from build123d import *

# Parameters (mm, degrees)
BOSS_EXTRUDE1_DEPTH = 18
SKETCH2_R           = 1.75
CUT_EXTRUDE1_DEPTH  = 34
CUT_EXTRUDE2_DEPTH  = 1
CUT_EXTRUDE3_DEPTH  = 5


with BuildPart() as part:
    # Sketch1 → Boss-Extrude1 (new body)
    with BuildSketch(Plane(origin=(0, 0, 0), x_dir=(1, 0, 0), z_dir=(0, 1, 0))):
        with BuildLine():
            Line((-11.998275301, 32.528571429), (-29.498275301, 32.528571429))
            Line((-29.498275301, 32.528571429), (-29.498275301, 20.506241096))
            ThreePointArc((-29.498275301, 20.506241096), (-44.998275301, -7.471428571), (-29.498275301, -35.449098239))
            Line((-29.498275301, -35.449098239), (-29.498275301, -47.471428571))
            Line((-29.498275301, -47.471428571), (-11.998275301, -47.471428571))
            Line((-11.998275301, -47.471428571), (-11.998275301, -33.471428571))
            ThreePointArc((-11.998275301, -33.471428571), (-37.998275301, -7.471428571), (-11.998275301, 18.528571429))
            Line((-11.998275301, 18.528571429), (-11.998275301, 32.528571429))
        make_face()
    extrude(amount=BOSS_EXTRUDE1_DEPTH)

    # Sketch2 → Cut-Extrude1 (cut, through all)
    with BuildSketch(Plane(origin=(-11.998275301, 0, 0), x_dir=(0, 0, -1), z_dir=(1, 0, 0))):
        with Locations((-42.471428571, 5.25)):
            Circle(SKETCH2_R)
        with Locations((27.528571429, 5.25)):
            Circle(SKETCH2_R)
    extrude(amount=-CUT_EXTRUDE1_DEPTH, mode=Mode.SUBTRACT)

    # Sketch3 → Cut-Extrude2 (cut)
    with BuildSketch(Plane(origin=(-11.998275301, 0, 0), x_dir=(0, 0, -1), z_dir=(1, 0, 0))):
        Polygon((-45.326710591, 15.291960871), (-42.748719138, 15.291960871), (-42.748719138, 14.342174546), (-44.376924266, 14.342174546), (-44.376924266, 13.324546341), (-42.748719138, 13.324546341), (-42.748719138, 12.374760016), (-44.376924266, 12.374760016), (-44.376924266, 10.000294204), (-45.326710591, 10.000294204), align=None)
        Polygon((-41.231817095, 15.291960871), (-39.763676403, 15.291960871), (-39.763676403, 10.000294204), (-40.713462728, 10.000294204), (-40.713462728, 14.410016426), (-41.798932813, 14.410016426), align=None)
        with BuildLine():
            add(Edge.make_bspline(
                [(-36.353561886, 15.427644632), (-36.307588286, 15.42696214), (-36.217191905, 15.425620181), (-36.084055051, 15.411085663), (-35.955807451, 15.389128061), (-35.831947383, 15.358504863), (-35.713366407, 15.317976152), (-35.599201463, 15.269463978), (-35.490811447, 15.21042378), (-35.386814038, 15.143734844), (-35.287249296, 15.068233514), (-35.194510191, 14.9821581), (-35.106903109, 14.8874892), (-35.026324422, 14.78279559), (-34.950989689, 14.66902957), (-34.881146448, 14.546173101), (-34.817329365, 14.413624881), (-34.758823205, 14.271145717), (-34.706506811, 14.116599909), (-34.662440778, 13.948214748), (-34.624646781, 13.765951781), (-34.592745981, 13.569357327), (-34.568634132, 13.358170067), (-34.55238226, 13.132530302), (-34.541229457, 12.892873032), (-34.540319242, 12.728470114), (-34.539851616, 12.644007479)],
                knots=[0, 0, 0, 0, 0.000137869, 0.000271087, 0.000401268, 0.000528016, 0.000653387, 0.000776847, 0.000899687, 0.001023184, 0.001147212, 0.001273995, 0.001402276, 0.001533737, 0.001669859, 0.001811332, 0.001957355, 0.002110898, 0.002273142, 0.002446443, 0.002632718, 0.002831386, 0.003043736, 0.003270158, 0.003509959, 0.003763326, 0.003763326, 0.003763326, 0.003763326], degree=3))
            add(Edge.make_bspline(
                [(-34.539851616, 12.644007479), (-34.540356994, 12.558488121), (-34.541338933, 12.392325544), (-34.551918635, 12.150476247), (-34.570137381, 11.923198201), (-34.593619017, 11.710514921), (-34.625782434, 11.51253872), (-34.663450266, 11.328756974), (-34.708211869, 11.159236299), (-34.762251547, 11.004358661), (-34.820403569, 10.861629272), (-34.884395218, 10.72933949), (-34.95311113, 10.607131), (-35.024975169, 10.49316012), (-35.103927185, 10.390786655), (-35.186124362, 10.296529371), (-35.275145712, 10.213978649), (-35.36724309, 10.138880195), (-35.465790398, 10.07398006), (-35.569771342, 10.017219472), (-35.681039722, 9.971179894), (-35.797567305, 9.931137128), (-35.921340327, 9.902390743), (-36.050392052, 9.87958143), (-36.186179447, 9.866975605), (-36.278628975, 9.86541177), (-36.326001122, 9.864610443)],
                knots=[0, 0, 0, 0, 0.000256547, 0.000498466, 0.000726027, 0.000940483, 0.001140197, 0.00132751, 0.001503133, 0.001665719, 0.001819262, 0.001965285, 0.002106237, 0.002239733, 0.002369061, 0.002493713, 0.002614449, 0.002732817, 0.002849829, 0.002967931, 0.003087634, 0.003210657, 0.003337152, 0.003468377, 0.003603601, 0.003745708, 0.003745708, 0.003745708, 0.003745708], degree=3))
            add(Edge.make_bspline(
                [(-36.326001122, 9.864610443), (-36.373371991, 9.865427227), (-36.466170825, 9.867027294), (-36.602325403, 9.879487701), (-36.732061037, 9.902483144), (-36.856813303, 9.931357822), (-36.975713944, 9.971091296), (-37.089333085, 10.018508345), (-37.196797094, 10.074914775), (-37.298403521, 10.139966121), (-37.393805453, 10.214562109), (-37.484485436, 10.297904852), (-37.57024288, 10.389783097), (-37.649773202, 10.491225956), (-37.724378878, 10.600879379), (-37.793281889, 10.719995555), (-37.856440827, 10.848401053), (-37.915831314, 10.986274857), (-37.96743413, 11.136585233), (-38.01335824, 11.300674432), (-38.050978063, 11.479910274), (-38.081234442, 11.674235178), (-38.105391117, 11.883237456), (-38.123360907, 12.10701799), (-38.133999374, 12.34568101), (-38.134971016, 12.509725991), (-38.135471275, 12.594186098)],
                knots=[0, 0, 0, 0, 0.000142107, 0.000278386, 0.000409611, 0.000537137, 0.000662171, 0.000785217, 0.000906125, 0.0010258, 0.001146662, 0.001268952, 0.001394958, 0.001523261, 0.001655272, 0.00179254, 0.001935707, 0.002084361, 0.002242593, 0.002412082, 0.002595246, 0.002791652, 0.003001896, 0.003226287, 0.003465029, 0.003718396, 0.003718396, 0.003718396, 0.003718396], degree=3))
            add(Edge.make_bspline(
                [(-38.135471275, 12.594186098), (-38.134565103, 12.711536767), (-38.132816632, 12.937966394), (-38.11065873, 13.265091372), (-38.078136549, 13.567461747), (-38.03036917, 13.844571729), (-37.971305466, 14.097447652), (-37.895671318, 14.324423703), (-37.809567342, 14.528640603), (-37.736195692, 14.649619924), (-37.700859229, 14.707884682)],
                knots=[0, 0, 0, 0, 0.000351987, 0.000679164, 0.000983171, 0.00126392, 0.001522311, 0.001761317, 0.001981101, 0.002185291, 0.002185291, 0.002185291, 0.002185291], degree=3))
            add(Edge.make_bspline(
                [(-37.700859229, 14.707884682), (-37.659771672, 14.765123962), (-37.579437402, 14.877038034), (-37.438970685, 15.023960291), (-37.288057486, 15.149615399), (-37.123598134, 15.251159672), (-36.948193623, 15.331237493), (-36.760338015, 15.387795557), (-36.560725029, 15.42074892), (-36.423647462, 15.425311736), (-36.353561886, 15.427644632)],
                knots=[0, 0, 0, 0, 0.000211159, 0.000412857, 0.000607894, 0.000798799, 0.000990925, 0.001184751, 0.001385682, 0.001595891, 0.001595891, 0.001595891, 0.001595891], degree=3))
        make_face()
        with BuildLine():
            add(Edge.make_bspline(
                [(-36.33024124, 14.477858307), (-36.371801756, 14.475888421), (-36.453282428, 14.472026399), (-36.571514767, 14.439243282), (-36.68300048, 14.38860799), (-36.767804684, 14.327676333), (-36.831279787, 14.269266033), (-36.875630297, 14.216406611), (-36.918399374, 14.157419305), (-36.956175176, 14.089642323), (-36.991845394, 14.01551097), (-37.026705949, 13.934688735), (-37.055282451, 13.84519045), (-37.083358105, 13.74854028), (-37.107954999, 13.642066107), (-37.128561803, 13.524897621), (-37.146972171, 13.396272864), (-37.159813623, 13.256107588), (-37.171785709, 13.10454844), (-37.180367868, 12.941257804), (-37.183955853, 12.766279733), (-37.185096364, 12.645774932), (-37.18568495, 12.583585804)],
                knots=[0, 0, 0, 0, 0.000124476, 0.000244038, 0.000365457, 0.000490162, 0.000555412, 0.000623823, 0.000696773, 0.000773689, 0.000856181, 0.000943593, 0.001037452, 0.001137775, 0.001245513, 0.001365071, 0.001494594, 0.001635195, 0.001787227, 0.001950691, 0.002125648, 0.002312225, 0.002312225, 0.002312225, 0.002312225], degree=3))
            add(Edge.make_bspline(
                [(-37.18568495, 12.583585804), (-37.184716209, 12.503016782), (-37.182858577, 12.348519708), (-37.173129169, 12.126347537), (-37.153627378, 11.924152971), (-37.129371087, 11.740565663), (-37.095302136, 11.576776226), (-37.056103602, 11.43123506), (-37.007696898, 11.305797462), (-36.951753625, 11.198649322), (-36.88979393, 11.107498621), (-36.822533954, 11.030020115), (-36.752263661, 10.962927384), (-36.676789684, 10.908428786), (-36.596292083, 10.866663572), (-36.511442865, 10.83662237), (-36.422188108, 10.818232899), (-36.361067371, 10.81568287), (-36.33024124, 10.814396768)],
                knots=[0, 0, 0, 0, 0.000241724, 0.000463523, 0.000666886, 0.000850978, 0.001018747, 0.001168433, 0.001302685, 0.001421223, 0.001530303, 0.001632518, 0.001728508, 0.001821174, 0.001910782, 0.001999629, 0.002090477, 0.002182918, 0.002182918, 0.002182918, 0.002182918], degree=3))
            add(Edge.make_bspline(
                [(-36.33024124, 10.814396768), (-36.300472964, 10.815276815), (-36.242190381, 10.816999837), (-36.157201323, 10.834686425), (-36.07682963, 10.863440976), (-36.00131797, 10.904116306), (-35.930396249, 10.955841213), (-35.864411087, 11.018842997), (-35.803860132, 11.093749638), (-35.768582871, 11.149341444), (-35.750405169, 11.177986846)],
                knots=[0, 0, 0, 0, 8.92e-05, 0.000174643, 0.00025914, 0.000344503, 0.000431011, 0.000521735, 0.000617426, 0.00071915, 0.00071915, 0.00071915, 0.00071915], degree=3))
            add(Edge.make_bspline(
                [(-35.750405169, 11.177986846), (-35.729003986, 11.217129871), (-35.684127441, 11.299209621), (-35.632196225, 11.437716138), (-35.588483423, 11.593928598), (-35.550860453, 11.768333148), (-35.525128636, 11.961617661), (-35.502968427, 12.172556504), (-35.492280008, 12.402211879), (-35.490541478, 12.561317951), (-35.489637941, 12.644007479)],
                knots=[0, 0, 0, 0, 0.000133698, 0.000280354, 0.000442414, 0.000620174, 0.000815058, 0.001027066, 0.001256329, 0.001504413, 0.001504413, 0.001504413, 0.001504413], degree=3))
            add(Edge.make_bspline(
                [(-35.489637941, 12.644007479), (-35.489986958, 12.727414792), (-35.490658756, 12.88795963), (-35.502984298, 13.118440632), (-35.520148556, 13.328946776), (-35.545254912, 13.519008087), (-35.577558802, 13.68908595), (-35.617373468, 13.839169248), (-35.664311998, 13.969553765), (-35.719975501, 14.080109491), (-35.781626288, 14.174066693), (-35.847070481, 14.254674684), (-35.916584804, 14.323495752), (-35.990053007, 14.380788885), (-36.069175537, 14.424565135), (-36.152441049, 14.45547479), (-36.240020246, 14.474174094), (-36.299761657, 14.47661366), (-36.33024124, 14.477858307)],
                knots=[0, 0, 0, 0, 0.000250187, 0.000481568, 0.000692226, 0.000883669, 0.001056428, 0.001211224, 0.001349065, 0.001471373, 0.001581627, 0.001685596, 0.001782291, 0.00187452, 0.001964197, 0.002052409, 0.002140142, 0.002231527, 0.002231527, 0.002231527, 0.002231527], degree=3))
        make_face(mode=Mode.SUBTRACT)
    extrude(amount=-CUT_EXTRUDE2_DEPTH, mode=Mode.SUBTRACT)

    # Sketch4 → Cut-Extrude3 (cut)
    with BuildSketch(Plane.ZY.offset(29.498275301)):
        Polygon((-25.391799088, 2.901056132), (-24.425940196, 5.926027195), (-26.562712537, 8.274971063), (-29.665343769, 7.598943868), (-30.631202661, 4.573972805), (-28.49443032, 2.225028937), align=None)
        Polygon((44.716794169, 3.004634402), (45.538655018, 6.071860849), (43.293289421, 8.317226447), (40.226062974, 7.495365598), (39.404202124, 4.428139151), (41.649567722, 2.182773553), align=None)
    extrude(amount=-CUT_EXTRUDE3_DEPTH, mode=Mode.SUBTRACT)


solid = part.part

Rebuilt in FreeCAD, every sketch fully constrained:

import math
import FreeCAD as App
import Part
import Sketcher
Q = App.Units.Quantity


def add_polygon(sketch, points):
    """Adds a closed chain of lines whose ends are joined by coincident constraints."""
    first, n = sketch.GeometryCount, len(points)
    for a, b in zip(points, points[1:] + points[:1]):
        sketch.addGeometry(Part.LineSegment(App.Vector(*a, 0), App.Vector(*b, 0)), False)
    for i in range(n):
        sketch.addConstraint(Sketcher.Constraint("Coincident", first + i, 2, first + (i + 1) % n, 1))

doc = App.newDocument("Part")
params = doc.addObject("Spreadsheet::Sheet", "Params")
for row, (alias, value) in enumerate([
    ("sketch1_radius", "33 mm"),
    ("sketch1_radius2", "26 mm"),
    ("sketch1_height", "14 mm"),
    ("sketch1_width", "17.5 mm"),
    ("pad1_length", "18 mm"),
    ("sketch2_diameter", "3.5 mm"),
    ("pocket2_length", "1 mm"),
    ("pocket3_length", "5 mm"),
], start=1):
    params.set(f"A{row}", alias)
    params.set(f"B{row}", "=" + value)
    params.setAlias(f"B{row}", alias)

body = doc.addObject("PartDesign::Body", "Body")

sketch1 = body.newObject("Sketcher::SketchObject", "Sketch")
sketch1.AttachmentSupport = (doc.getObject("XZ_Plane"), [""])
sketch1.MapMode = "FlatFace"
sketch1.addGeometry([
    Part.LineSegment(App.Vector(-12, -33, 0), App.Vector(-29, -33, 0)),
    Part.LineSegment(App.Vector(-29, -33, 0), App.Vector(-29, -21, 0)),
    Part.ArcOfCircle(Part.Circle(App.Vector(-12, 7, 0), App.Vector(0, 0, 1), 33), math.radians(122), math.radians(238)),
    Part.LineSegment(App.Vector(-29, 35, 0), App.Vector(-29, 47, 0)),
    Part.LineSegment(App.Vector(-29, 47, 0), App.Vector(-12, 47, 0)),
    Part.LineSegment(App.Vector(-12, 47, 0), App.Vector(-12, 33, 0)),
    Part.ArcOfCircle(Part.Circle(App.Vector(-12, 7, 0), App.Vector(0, 0, 1), 26), math.radians(90), math.radians(270)),
    Part.LineSegment(App.Vector(-12, -19, 0), App.Vector(-12, -33, 0)),
], False)
sketch1.addConstraint([
    Sketcher.Constraint("Coincident", 0, 2, 1, 1),
    Sketcher.Constraint("Coincident", 1, 2, 2, 2),
    Sketcher.Constraint("Coincident", 2, 1, 3, 1),
    Sketcher.Constraint("Coincident", 3, 2, 4, 1),
    Sketcher.Constraint("Coincident", 4, 2, 5, 1),
    Sketcher.Constraint("Coincident", 5, 2, 6, 1),
    Sketcher.Constraint("Coincident", 6, 2, 7, 1),
    Sketcher.Constraint("Coincident", 7, 2, 0, 1),
    Sketcher.Constraint("Horizontal", 0),
    Sketcher.Constraint("Vertical", 1),
    Sketcher.Constraint("Vertical", 3),
    Sketcher.Constraint("Horizontal", 4),
    Sketcher.Constraint("Vertical", 5),
    Sketcher.Constraint("Vertical", 7),
    Sketcher.Constraint("Coincident", 6, 3, 2, 3),
    Sketcher.Constraint("Vertical", 1, 2, 2, 1),
    Sketcher.Constraint("Vertical", 6, 3, 4, 2),
    Sketcher.Constraint("Vertical", 5, 2, 6, 2),
    Sketcher.Constraint("Equal", 1, 3),
    Sketcher.Constraint("Radius", 2, Q("33 mm")),
    Sketcher.Constraint("Radius", 6, Q("26 mm")),
    Sketcher.Constraint("DistanceY", 5, 2, 5, 1, Q("14 mm")),
    Sketcher.Constraint("DistanceX", 0, 2, 0, 1, Q("17.5 mm")),
    Sketcher.Constraint("DistanceY", -1, 1, 2, 1, Q("35.449098 mm")),
    Sketcher.Constraint("DistanceX", 2, 3, -1, 1, Q("11.998275 mm")),
])
sketch1.setExpression("Constraints[19]", "Params.sketch1_radius")
sketch1.setExpression("Constraints[20]", "Params.sketch1_radius2")
sketch1.setExpression("Constraints[21]", "Params.sketch1_height")
sketch1.setExpression("Constraints[22]", "Params.sketch1_width")
pad1 = body.newObject("PartDesign::Pad", "Pad")
pad1.Profile = sketch1
pad1.setExpression("Length", "Params.pad1_length")
pad1.Reversed = True

sketch2 = body.newObject("Sketcher::SketchObject", "Sketch001")
sketch2.AttachmentSupport = (doc.getObject("YZ_Plane"), [""])
sketch2.MapMode = "FlatFace"
sketch2.AttachmentOffset = App.Placement(App.Vector(0, 0, -11.998275), App.Rotation())
sketch2.addGeometry([
    Part.Circle(App.Vector(5.2, 42.5, 0), App.Vector(0, 0, 1), 1.8),
    Part.Circle(App.Vector(5.2, -27.5, 0), App.Vector(0, 0, 1), 1.8),
], False)
sketch2.addConstraint([
    Sketcher.Constraint("Equal", 0, 1),
    Sketcher.Constraint("Vertical", 0, 3, 1, 3),
    Sketcher.Constraint("Diameter", 0, Q("3.5 mm")),
    Sketcher.Constraint("DistanceY", 1, 3, 0, 3, Q("70 mm")),
    Sketcher.Constraint("DistanceX", -1, 1, 0, 3, Q("5.25 mm")),
    Sketcher.Constraint("DistanceY", -1, 1, 0, 3, Q("42.471429 mm")),
])
sketch2.setExpression("Constraints[2]", "Params.sketch2_diameter")
pocket1 = body.newObject("PartDesign::Pocket", "Pocket")
pocket1.Profile = sketch2
pocket1.Type = "ThroughAll"

sketch3 = body.newObject("Sketcher::SketchObject", "Sketch002")
sketch3.AttachmentSupport = (doc.getObject("YZ_Plane"), [""])
sketch3.MapMode = "FlatFace"
sketch3.AttachmentOffset = App.Placement(App.Vector(0, 0, -11.998275), App.Rotation())
add_polygon(sketch3, [(15.291961, 42.748719), (15.291961, 45.326711), (10.000294, 45.326711), (10.000294, 44.376924), (12.37476, 44.376924), (12.37476, 42.748719), (13.324546, 42.748719), (13.324546, 44.376924), (14.342175, 44.376924), (14.342175, 42.748719)])
add_polygon(sketch3, [(15.291961, 39.763676), (15.291961, 41.231817), (14.410016, 41.798933), (14.410016, 40.713463), (10.000294, 40.713463), (10.000294, 39.763676)])
sketch3.addGeometry(Part.BSplineCurve([App.Vector(15.427645, 36.353562, 0), App.Vector(15.426962, 36.307588, 0), App.Vector(15.42562, 36.217192, 0), App.Vector(15.411086, 36.084055, 0), App.Vector(15.389128, 35.955807, 0), App.Vector(15.358505, 35.831947, 0), App.Vector(15.317976, 35.713366, 0), App.Vector(15.269464, 35.599201, 0), App.Vector(15.210424, 35.490811, 0), App.Vector(15.143735, 35.386814, 0), App.Vector(15.068234, 35.287249, 0), App.Vector(14.982158, 35.19451, 0), App.Vector(14.887489, 35.106903, 0), App.Vector(14.782796, 35.026324, 0), App.Vector(14.66903, 34.95099, 0), App.Vector(14.546173, 34.881146, 0), App.Vector(14.413625, 34.817329, 0), App.Vector(14.271146, 34.758823, 0), App.Vector(14.1166, 34.706507, 0), App.Vector(13.948215, 34.662441, 0), App.Vector(13.765952, 34.624647, 0), App.Vector(13.569357, 34.592746, 0), App.Vector(13.35817, 34.568634, 0), App.Vector(13.13253, 34.552382, 0), App.Vector(12.892873, 34.541229, 0), App.Vector(12.72847, 34.540319, 0), App.Vector(12.644007, 34.539852, 0)], [4, 1, 1, 1, 1, 1, 1, 1, 1, 1, 1, 1, 1, 1, 1, 1, 1, 1, 1, 1, 1, 1, 1, 1, 4], [0, 0.000137869, 0.000271087, 0.000401268, 0.000528016, 0.000653387, 0.000776847, 0.000899687, 0.001023184, 0.001147212, 0.001273995, 0.001402276, 0.001533737, 0.001669859, 0.001811332, 0.001957355, 0.002110898, 0.002273142, 0.002446443, 0.002632718, 0.002831386, 0.003043736, 0.003270158, 0.003509959, 0.003763326], False, 3, [1, 1, 1, 1, 1, 1, 1, 1, 1, 1, 1, 1, 1, 1, 1, 1, 1, 1, 1, 1, 1, 1, 1, 1, 1, 1, 1], False), False)
sketch3.addGeometry(Part.BSplineCurve([App.Vector(14.707885, 37.700859, 0), App.Vector(14.765124, 37.659772, 0), App.Vector(14.877038, 37.579437, 0), App.Vector(15.02396, 37.438971, 0), App.Vector(15.149615, 37.288057, 0), App.Vector(15.25116, 37.123598, 0), App.Vector(15.331237, 36.948194, 0), App.Vector(15.387796, 36.760338, 0), App.Vector(15.420749, 36.560725, 0), App.Vector(15.425312, 36.423647, 0), App.Vector(15.427645, 36.353562, 0)], [4, 1, 1, 1, 1, 1, 1, 1, 4], [0, 0.000211159, 0.000412857, 0.000607894, 0.000798799, 0.000990925, 0.001184751, 0.001385682, 0.001595891], False, 3, [1, 1, 1, 1, 1, 1, 1, 1, 1, 1, 1], False), False)
sketch3.addGeometry(Part.BSplineCurve([App.Vector(12.594186, 38.135471, 0), App.Vector(12.711537, 38.134565, 0), App.Vector(12.937966, 38.132817, 0), App.Vector(13.265091, 38.110659, 0), App.Vector(13.567462, 38.078137, 0), App.Vector(13.844572, 38.030369, 0), App.Vector(14.097448, 37.971305, 0), App.Vector(14.324424, 37.895671, 0), App.Vector(14.528641, 37.809567, 0), App.Vector(14.64962, 37.736196, 0), App.Vector(14.707885, 37.700859, 0)], [4, 1, 1, 1, 1, 1, 1, 1, 4], [0, 0.000351987, 0.000679164, 0.000983171, 0.00126392, 0.001522311, 0.001761317, 0.001981101, 0.002185291], False, 3, [1, 1, 1, 1, 1, 1, 1, 1, 1, 1, 1], False), False)
sketch3.addGeometry(Part.BSplineCurve([App.Vector(9.86461, 36.326001, 0), App.Vector(9.865427, 36.373372, 0), App.Vector(9.867027, 36.466171, 0), App.Vector(9.879488, 36.602325, 0), App.Vector(9.902483, 36.732061, 0), App.Vector(9.931358, 36.856813, 0), App.Vector(9.971091, 36.975714, 0), App.Vector(10.018508, 37.089333, 0), App.Vector(10.074915, 37.196797, 0), App.Vector(10.139966, 37.298404, 0), App.Vector(10.214562, 37.393805, 0), App.Vector(10.297905, 37.484485, 0), App.Vector(10.389783, 37.570243, 0), App.Vector(10.491226, 37.649773, 0), App.Vector(10.600879, 37.724379, 0), App.Vector(10.719996, 37.793282, 0), App.Vector(10.848401, 37.856441, 0), App.Vector(10.986275, 37.915831, 0), App.Vector(11.136585, 37.967434, 0), App.Vector(11.300674, 38.013358, 0), App.Vector(11.47991, 38.050978, 0), App.Vector(11.674235, 38.081234, 0), App.Vector(11.883237, 38.105391, 0), App.Vector(12.107018, 38.123361, 0), App.Vector(12.345681, 38.133999, 0), App.Vector(12.509726, 38.134971, 0), App.Vector(12.594186, 38.135471, 0)], [4, 1, 1, 1, 1, 1, 1, 1, 1, 1, 1, 1, 1, 1, 1, 1, 1, 1, 1, 1, 1, 1, 1, 1, 4], [0, 0.000142107, 0.000278386, 0.000409611, 0.000537137, 0.000662171, 0.000785217, 0.000906125, 0.0010258, 0.001146662, 0.001268952, 0.001394958, 0.001523261, 0.001655272, 0.00179254, 0.001935707, 0.002084361, 0.002242593, 0.002412082, 0.002595246, 0.002791652, 0.003001896, 0.003226287, 0.003465029, 0.003718396], False, 3, [1, 1, 1, 1, 1, 1, 1, 1, 1, 1, 1, 1, 1, 1, 1, 1, 1, 1, 1, 1, 1, 1, 1, 1, 1, 1, 1], False), False)
sketch3.addGeometry(Part.BSplineCurve([App.Vector(12.644007, 34.539852, 0), App.Vector(12.558488, 34.540357, 0), App.Vector(12.392326, 34.541339, 0), App.Vector(12.150476, 34.551919, 0), App.Vector(11.923198, 34.570137, 0), App.Vector(11.710515, 34.593619, 0), App.Vector(11.512539, 34.625782, 0), App.Vector(11.328757, 34.66345, 0), App.Vector(11.159236, 34.708212, 0), App.Vector(11.004359, 34.762252, 0), App.Vector(10.861629, 34.820404, 0), App.Vector(10.729339, 34.884395, 0), App.Vector(10.607131, 34.953111, 0), App.Vector(10.49316, 35.024975, 0), App.Vector(10.390787, 35.103927, 0), App.Vector(10.296529, 35.186124, 0), App.Vector(10.213979, 35.275146, 0), App.Vector(10.13888, 35.367243, 0), App.Vector(10.07398, 35.46579, 0), App.Vector(10.017219, 35.569771, 0), App.Vector(9.97118, 35.68104, 0), App.Vector(9.931137, 35.797567, 0), App.Vector(9.902391, 35.92134, 0), App.Vector(9.879581, 36.050392, 0), App.Vector(9.866976, 36.186179, 0), App.Vector(9.865412, 36.278629, 0), App.Vector(9.86461, 36.326001, 0)], [4, 1, 1, 1, 1, 1, 1, 1, 1, 1, 1, 1, 1, 1, 1, 1, 1, 1, 1, 1, 1, 1, 1, 1, 4], [0, 0.000256547, 0.000498466, 0.000726027, 0.000940483, 0.001140197, 0.00132751, 0.001503133, 0.001665719, 0.001819262, 0.001965285, 0.002106237, 0.002239733, 0.002369061, 0.002493713, 0.002614449, 0.002732817, 0.002849829, 0.002967931, 0.003087634, 0.003210657, 0.003337152, 0.003468377, 0.003603601, 0.003745708], False, 3, [1, 1, 1, 1, 1, 1, 1, 1, 1, 1, 1, 1, 1, 1, 1, 1, 1, 1, 1, 1, 1, 1, 1, 1, 1, 1, 1], False), False)
sketch3.addGeometry(Part.BSplineCurve([App.Vector(12.644007, 35.489638, 0), App.Vector(12.727415, 35.489987, 0), App.Vector(12.88796, 35.490659, 0), App.Vector(13.118441, 35.502984, 0), App.Vector(13.328947, 35.520149, 0), App.Vector(13.519008, 35.545255, 0), App.Vector(13.689086, 35.577559, 0), App.Vector(13.839169, 35.617373, 0), App.Vector(13.969554, 35.664312, 0), App.Vector(14.080109, 35.719976, 0), App.Vector(14.174067, 35.781626, 0), App.Vector(14.254675, 35.84707, 0), App.Vector(14.323496, 35.916585, 0), App.Vector(14.380789, 35.990053, 0), App.Vector(14.424565, 36.069176, 0), App.Vector(14.455475, 36.152441, 0), App.Vector(14.474174, 36.24002, 0), App.Vector(14.476614, 36.299762, 0), App.Vector(14.477858, 36.330241, 0)], [4, 1, 1, 1, 1, 1, 1, 1, 1, 1, 1, 1, 1, 1, 1, 1, 4], [0, 0.000250187, 0.000481568, 0.000692226, 0.000883669, 0.001056428, 0.001211224, 0.001349065, 0.001471373, 0.001581627, 0.001685596, 0.001782291, 0.00187452, 0.001964197, 0.002052409, 0.002140142, 0.002231527], False, 3, [1, 1, 1, 1, 1, 1, 1, 1, 1, 1, 1, 1, 1, 1, 1, 1, 1, 1, 1], False), False)
sketch3.addGeometry(Part.BSplineCurve([App.Vector(11.177987, 35.750405, 0), App.Vector(11.21713, 35.729004, 0), App.Vector(11.29921, 35.684127, 0), App.Vector(11.437716, 35.632196, 0), App.Vector(11.593929, 35.588483, 0), App.Vector(11.768333, 35.55086, 0), App.Vector(11.961618, 35.525129, 0), App.Vector(12.172557, 35.502968, 0), App.Vector(12.402212, 35.49228, 0), App.Vector(12.561318, 35.490541, 0), App.Vector(12.644007, 35.489638, 0)], [4, 1, 1, 1, 1, 1, 1, 1, 4], [0, 0.000133698, 0.000280354, 0.000442414, 0.000620174, 0.000815058, 0.001027066, 0.001256329, 0.001504413], False, 3, [1, 1, 1, 1, 1, 1, 1, 1, 1, 1, 1], False), False)
sketch3.addGeometry(Part.BSplineCurve([App.Vector(10.814397, 36.330241, 0), App.Vector(10.815277, 36.300473, 0), App.Vector(10.817, 36.24219, 0), App.Vector(10.834686, 36.157201, 0), App.Vector(10.863441, 36.07683, 0), App.Vector(10.904116, 36.001318, 0), App.Vector(10.955841, 35.930396, 0), App.Vector(11.018843, 35.864411, 0), App.Vector(11.09375, 35.80386, 0), App.Vector(11.149341, 35.768583, 0), App.Vector(11.177987, 35.750405, 0)], [4, 1, 1, 1, 1, 1, 1, 1, 4], [0, 0.0000892, 0.000174643, 0.00025914, 0.000344503, 0.000431011, 0.000521735, 0.000617426, 0.00071915], False, 3, [1, 1, 1, 1, 1, 1, 1, 1, 1, 1, 1], False), False)
sketch3.addGeometry(Part.BSplineCurve([App.Vector(12.583586, 37.185685, 0), App.Vector(12.503017, 37.184716, 0), App.Vector(12.34852, 37.182859, 0), App.Vector(12.126348, 37.173129, 0), App.Vector(11.924153, 37.153627, 0), App.Vector(11.740566, 37.129371, 0), App.Vector(11.576776, 37.095302, 0), App.Vector(11.431235, 37.056104, 0), App.Vector(11.305797, 37.007697, 0), App.Vector(11.198649, 36.951754, 0), App.Vector(11.107499, 36.889794, 0), App.Vector(11.03002, 36.822534, 0), App.Vector(10.962927, 36.752264, 0), App.Vector(10.908429, 36.67679, 0), App.Vector(10.866664, 36.596292, 0), App.Vector(10.836622, 36.511443, 0), App.Vector(10.818233, 36.422188, 0), App.Vector(10.815683, 36.361067, 0), App.Vector(10.814397, 36.330241, 0)], [4, 1, 1, 1, 1, 1, 1, 1, 1, 1, 1, 1, 1, 1, 1, 1, 4], [0, 0.000241724, 0.000463523, 0.000666886, 0.000850978, 0.001018747, 0.001168433, 0.001302685, 0.001421223, 0.001530303, 0.001632518, 0.001728508, 0.001821174, 0.001910782, 0.001999629, 0.002090477, 0.002182918], False, 3, [1, 1, 1, 1, 1, 1, 1, 1, 1, 1, 1, 1, 1, 1, 1, 1, 1, 1, 1], False), False)
sketch3.addGeometry(Part.BSplineCurve([App.Vector(14.477858, 36.330241, 0), App.Vector(14.475888, 36.371802, 0), App.Vector(14.472026, 36.453282, 0), App.Vector(14.439243, 36.571515, 0), App.Vector(14.388608, 36.683, 0), App.Vector(14.327676, 36.767805, 0), App.Vector(14.269266, 36.83128, 0), App.Vector(14.216407, 36.87563, 0), App.Vector(14.157419, 36.918399, 0), App.Vector(14.089642, 36.956175, 0), App.Vector(14.015511, 36.991845, 0), App.Vector(13.934689, 37.026706, 0), App.Vector(13.84519, 37.055282, 0), App.Vector(13.74854, 37.083358, 0), App.Vector(13.642066, 37.107955, 0), App.Vector(13.524898, 37.128562, 0), App.Vector(13.396273, 37.146972, 0), App.Vector(13.256108, 37.159814, 0), App.Vector(13.104548, 37.171786, 0), App.Vector(12.941258, 37.180368, 0), App.Vector(12.76628, 37.183956, 0), App.Vector(12.645775, 37.185096, 0), App.Vector(12.583586, 37.185685, 0)], [4, 1, 1, 1, 1, 1, 1, 1, 1, 1, 1, 1, 1, 1, 1, 1, 1, 1, 1, 1, 4], [0, 0.000124476, 0.000244038, 0.000365457, 0.000490162, 0.000555412, 0.000623823, 0.000696773, 0.000773689, 0.000856181, 0.000943593, 0.001037452, 0.001137775, 0.001245513, 0.001365071, 0.001494594, 0.001635195, 0.001787227, 0.001950691, 0.002125648, 0.002312225], False, 3, [1, 1, 1, 1, 1, 1, 1, 1, 1, 1, 1, 1, 1, 1, 1, 1, 1, 1, 1, 1, 1, 1, 1], False), False)
sketch3.addConstraint([
    Sketcher.Constraint("Block", 16),
    Sketcher.Constraint("Block", 17),
    Sketcher.Constraint("Block", 18),
    Sketcher.Constraint("Block", 19),
    Sketcher.Constraint("Block", 20),
    Sketcher.Constraint("Block", 21),
    Sketcher.Constraint("Block", 22),
    Sketcher.Constraint("Block", 23),
    Sketcher.Constraint("Block", 24),
    Sketcher.Constraint("Block", 25),
    Sketcher.Constraint("Vertical", 0),
    Sketcher.Constraint("Horizontal", 1),
    Sketcher.Constraint("Vertical", 2),
    Sketcher.Constraint("Horizontal", 3),
    Sketcher.Constraint("Vertical", 4),
    Sketcher.Constraint("Horizontal", 5),
    Sketcher.Constraint("Vertical", 6),
    Sketcher.Constraint("Horizontal", 7),
    Sketcher.Constraint("Vertical", 8),
    Sketcher.Constraint("Horizontal", 9),
    Sketcher.Constraint("Vertical", 10),
    Sketcher.Constraint("Vertical", 12),
    Sketcher.Constraint("Horizontal", 13),
    Sketcher.Constraint("Vertical", 14),
    Sketcher.Constraint("Horizontal", 15),
    Sketcher.Constraint("Horizontal", 3, 2, 6, 2),
    Sketcher.Constraint("Horizontal", 5, 2, 8, 2),
    Sketcher.Constraint("Vertical", 9, 2, 10, 2),
    Sketcher.Constraint("Vertical", 2, 2, 13, 2),
    Sketcher.Constraint("Equal", 5, 9),
    Sketcher.Constraint("Equal", 9, 2),
    Sketcher.Constraint("Equal", 2, 14),
    Sketcher.Constraint("DistanceX", 7, 1, 7, 2, Q("1.017628 mm")),
    Sketcher.Constraint("DistanceY", 0, 1, 0, 2, Q("2.577991 mm")),
    Sketcher.Constraint("DistanceY", 10, 1, 10, 2, Q("1.468141 mm")),
    Sketcher.Constraint("DistanceY", 12, 2, 12, 1, Q("1.08547 mm")),
    Sketcher.Constraint("DistanceX", 3, 2, 0, 2, Q("2.917201 mm")),
    Sketcher.Constraint("DistanceX", 1, 2, 1, 1, Q("5.291667 mm")),
    Sketcher.Constraint("DistanceX", 13, 2, 13, 1, Q("4.409722 mm")),
    Sketcher.Constraint("DistanceX", -1, 1, 0, 2, Q("15.291961 mm")),
    Sketcher.Constraint("DistanceY", -1, 1, 0, 2, Q("45.326711 mm")),
    Sketcher.Constraint("DistanceY", 13, 2, 2, 2, Q("3.663462 mm")),
])
pocket2 = body.newObject("PartDesign::Pocket", "Pocket001")
pocket2.Profile = sketch3
pocket2.setExpression("Length", "Params.pocket2_length")

sketch4 = body.newObject("Sketcher::SketchObject", "Sketch003")
sketch4.AttachmentSupport = (doc.getObject("YZ_Plane"), [""])
sketch4.MapMode = "FlatFace"
sketch4.AttachmentOffset = App.Placement(App.Vector(0, 0, -29.498275), App.Rotation())
add_polygon(sketch4, [(2.9, -25.4), (5.9, -24.4), (8.3, -26.6), (7.6, -29.7), (4.6, -30.6), (2.2, -28.5)])
add_polygon(sketch4, [(3, 44.7), (6.1, 45.5), (8.3, 43.3), (7.5, 40.2), (4.4, 39.4), (2.2, 41.6)])
sketch4.addConstraint([
    Sketcher.Constraint("Parallel", 0, 3),
    Sketcher.Constraint("Parallel", 1, 4),
    Sketcher.Constraint("Parallel", 2, 5),
    Sketcher.Constraint("Parallel", 6, 9),
    Sketcher.Constraint("Parallel", 7, 10),
    Sketcher.Constraint("Parallel", 8, 11),
    Sketcher.Constraint("Equal", 0, 1),
    Sketcher.Constraint("Equal", 1, 2),
    Sketcher.Constraint("Equal", 2, 3),
    Sketcher.Constraint("Equal", 5, 6),
    Sketcher.Constraint("Equal", 6, 7),
    Sketcher.Constraint("Equal", 7, 8),
    Sketcher.Constraint("Equal", 8, 9),
    Sketcher.Constraint("Angle", 6, Q("15 deg")),
    Sketcher.Constraint("Angle", 7, Q("-45 deg")),
    Sketcher.Constraint("Angle", 8, Q("-105 deg")),
    Sketcher.Constraint("DistanceX", 3, 2, 1, 2, Q("3.700998 mm")),
    Sketcher.Constraint("DistanceY", 2, 2, 6, 2, Q("75.203999 mm")),
    Sketcher.Constraint("DistanceY", 1, 2, 7, 2, Q("69.856002 mm")),
    Sketcher.Constraint("DistanceY", 5, 2, 9, 2, Q("64.796001 mm")),
    Sketcher.Constraint("DistanceY", 5, 2, -1, 1, Q("25.391799 mm")),
    Sketcher.Constraint("DistanceX", 0, 2, 7, 2, Q("2.391199 mm")),
    Sketcher.Constraint("DistanceY", 0, 2, -1, 1, Q("24.42594 mm")),
    Sketcher.Constraint("DistanceX", -1, 1, 1, 2, Q("8.274971 mm")),
])
pocket3 = body.newObject("PartDesign::Pocket", "Pocket002")
pocket3.Profile = sketch4
pocket3.setExpression("Length", "Params.pocket3_length")
pocket3.Reversed = True

doc.recompute()
